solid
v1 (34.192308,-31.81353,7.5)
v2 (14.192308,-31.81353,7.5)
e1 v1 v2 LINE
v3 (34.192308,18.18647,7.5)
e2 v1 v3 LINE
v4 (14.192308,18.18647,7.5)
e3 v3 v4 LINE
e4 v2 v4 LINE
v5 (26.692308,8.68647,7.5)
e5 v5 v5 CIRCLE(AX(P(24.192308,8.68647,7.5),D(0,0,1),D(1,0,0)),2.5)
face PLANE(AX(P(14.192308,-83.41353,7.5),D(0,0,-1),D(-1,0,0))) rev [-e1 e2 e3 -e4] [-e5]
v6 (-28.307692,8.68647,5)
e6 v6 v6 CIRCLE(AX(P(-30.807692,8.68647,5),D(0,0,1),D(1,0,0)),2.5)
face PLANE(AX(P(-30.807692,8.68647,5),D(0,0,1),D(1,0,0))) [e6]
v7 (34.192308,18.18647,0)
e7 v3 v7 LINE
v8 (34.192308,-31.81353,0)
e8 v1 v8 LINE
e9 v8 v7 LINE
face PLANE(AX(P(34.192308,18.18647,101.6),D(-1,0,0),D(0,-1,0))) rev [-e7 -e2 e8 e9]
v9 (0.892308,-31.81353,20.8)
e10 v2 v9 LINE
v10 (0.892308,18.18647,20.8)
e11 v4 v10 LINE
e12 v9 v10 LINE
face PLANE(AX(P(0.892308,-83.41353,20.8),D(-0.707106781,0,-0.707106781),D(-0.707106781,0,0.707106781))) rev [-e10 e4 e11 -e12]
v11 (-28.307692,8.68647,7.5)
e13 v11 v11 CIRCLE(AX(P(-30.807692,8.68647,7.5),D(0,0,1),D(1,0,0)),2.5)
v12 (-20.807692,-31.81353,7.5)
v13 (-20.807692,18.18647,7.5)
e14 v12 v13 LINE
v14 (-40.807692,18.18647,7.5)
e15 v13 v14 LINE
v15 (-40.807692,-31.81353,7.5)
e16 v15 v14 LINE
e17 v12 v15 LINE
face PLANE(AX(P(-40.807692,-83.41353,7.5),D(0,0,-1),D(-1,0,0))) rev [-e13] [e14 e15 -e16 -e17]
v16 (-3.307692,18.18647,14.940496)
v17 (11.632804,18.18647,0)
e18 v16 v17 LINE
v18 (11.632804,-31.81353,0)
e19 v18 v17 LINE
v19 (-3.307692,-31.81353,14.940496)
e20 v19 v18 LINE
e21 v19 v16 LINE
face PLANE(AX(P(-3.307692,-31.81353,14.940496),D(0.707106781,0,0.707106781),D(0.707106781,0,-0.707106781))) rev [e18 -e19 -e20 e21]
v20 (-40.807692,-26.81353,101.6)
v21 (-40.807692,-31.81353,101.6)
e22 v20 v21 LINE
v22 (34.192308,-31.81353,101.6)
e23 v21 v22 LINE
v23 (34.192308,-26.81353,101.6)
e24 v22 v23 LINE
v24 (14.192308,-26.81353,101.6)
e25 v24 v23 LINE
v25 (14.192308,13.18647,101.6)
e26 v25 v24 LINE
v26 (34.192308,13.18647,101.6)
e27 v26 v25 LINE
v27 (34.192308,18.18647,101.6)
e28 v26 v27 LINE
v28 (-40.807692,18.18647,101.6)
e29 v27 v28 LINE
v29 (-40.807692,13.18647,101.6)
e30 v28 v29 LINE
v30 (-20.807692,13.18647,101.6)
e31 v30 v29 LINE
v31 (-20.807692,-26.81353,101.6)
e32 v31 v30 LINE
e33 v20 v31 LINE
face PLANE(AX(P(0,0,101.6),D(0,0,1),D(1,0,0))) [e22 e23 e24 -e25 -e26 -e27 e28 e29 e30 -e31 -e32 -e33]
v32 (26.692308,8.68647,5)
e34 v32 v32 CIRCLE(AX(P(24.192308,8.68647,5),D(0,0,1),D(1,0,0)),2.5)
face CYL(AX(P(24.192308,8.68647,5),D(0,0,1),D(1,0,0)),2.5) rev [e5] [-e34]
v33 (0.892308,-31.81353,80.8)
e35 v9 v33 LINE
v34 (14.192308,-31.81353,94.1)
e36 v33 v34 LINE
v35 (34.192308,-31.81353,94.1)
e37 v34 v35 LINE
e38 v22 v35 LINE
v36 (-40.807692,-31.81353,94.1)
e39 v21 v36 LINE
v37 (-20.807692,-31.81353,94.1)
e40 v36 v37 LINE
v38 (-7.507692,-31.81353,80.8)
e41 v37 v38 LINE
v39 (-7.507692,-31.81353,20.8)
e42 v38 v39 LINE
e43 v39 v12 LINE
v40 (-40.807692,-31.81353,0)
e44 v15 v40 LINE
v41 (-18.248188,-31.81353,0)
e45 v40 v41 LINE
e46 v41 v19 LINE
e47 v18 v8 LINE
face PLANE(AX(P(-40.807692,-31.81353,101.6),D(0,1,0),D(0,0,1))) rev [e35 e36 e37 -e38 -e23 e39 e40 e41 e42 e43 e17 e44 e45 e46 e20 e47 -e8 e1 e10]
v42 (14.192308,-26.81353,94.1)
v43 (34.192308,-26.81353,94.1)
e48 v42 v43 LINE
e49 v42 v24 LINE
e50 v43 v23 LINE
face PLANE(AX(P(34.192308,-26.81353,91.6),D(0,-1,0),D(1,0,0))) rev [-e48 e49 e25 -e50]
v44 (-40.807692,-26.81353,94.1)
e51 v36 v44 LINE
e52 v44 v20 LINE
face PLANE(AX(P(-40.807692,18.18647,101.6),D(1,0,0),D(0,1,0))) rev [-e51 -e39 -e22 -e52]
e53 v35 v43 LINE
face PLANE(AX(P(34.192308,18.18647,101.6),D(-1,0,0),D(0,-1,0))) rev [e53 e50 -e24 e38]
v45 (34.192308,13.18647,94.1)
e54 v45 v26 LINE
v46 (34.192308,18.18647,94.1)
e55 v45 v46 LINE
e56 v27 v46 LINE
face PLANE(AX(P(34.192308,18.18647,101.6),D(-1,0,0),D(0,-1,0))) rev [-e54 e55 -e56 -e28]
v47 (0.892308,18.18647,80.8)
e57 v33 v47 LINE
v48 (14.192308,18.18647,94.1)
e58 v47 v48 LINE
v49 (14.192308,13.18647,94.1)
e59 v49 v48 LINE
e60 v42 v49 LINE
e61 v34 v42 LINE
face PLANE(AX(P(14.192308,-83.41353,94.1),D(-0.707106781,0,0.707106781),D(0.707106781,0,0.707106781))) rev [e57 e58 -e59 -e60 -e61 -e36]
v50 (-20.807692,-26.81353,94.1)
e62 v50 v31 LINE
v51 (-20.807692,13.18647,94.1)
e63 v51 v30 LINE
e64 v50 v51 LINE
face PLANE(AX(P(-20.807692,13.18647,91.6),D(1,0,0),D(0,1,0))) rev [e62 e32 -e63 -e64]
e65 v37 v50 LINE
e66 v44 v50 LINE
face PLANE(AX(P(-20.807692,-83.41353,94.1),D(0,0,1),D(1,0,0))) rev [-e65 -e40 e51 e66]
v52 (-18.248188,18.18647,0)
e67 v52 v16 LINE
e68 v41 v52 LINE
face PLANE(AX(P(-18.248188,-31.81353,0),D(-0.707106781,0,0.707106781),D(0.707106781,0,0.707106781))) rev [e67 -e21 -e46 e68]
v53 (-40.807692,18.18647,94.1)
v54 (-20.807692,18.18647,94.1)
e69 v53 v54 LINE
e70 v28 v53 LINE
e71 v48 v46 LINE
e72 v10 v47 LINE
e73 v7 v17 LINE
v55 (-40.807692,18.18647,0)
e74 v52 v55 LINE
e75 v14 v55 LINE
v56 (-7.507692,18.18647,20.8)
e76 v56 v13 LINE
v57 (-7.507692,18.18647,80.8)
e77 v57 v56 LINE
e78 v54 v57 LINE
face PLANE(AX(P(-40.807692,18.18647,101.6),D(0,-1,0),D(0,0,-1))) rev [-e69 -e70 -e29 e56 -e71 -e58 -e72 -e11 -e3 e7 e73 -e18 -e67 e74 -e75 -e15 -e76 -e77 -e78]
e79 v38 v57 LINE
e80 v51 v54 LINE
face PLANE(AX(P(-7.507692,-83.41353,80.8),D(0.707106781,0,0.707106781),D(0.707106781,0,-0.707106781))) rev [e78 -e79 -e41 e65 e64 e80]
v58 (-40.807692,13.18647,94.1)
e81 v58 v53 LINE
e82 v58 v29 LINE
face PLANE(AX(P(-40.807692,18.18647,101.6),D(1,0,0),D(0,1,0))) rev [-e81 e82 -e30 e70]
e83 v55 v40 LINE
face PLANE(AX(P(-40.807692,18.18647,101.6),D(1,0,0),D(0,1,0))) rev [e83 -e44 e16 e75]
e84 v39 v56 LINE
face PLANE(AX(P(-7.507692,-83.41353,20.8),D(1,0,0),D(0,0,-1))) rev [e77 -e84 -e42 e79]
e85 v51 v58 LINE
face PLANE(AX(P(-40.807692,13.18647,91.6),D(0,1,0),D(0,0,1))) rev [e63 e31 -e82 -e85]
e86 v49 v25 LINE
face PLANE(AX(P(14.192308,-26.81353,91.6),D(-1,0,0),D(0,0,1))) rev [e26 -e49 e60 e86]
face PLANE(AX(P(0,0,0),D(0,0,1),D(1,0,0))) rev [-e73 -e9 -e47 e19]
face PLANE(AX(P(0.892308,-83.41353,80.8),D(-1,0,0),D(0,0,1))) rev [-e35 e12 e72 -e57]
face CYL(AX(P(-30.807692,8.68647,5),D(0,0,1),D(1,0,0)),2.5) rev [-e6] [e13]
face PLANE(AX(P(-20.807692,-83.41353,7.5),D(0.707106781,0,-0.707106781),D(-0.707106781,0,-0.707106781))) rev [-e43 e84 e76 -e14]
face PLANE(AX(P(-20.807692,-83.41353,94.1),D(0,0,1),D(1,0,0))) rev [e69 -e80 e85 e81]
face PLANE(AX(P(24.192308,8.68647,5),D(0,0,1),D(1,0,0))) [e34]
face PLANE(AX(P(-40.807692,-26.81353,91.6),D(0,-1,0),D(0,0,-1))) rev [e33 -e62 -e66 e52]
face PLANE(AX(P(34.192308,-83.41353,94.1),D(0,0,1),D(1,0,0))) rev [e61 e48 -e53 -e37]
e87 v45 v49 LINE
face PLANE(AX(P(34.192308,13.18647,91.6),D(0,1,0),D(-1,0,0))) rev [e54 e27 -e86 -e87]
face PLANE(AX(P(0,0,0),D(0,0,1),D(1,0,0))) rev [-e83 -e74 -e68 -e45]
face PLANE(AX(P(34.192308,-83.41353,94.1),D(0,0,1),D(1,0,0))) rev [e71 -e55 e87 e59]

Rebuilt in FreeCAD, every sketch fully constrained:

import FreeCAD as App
import Part
import Sketcher

V = App.Vector


def add_polygon(sketch, points):
    """Adds a closed chain of lines whose ends are joined by coincident constraints."""
    first, n = sketch.GeometryCount, len(points)
    for a, b in zip(points, points[1:] + points[:1]):
        sketch.addGeometry(Part.LineSegment(App.Vector(*a, 0), App.Vector(*b, 0)), False)
    for i in range(n):
        sketch.addConstraint(Sketcher.Constraint("Coincident", first + i, 2, first + (i + 1) % n, 1))

doc = App.newDocument("Part")
params = doc.addObject("Spreadsheet::Sheet", "Params")
for row, (alias, value) in enumerate([
    ("sketch1_width", "75 mm"),
    ("sketch1_height", "50 mm"),
    ("pad1_length", "101.6 mm"),
    ("sketch2_width", "20 mm"),
    ("sketch2_height", "60 mm"),
    ("sketch2_height2", "86.6 mm"),
    ("pocket1_length", "101.6 mm"),
    ("sketch3_width", "20 mm"),
    ("sketch3_height", "60 mm"),
    ("sketch3_height2", "86.6 mm"),
    ("pocket2_length", "101.6 mm"),
    ("sketch4_width", "20 mm"),
    ("sketch4_height", "40 mm"),
    ("pocket3_length", "10 mm"),
    ("sketch5_width", "20 mm"),
    ("sketch5_height", "40 mm"),
    ("pocket4_length", "10 mm"),
    ("sketch6_diameter", "5 mm"),
    ("pocket5_length", "2.5 mm"),
    ("sketch7_diameter", "5 mm"),
    ("pocket6_length", "2.5 mm"),
], start=1):
    params.set(f"A{row}", alias)
    params.set(f"B{row}", "=" + value)
    params.setAlias(f"B{row}", alias)

body = doc.addObject("PartDesign::Body", "Body")

sketch1 = body.newObject("Sketcher::SketchObject", "Sketch")
sketch1.AttachmentSupport = (doc.getObject("XY_Plane"), [""])
sketch1.MapMode = "FlatFace"
add_polygon(sketch1, [(-40.807692, 18.18647), (-40.807692, -31.81353), (34.192308, -31.81353), (34.192308, 18.18647)])
sketch1.addConstraint(Sketcher.Constraint("Vertical", 0))
sketch1.addConstraint(Sketcher.Constraint("Horizontal", 1))
sketch1.addConstraint(Sketcher.Constraint("Vertical", 2))
sketch1.addConstraint(Sketcher.Constraint("Horizontal", 3))
sketch1.addConstraint(Sketcher.Constraint("DistanceX", 1, 1, 1, 2, 75.0))
sketch1.addConstraint(Sketcher.Constraint("DistanceY", 0, 2, 0, 1, 50.0))
sketch1.addConstraint(Sketcher.Constraint("DistanceY", 0, 2, -1, 1, 31.81353))
sketch1.addConstraint(Sketcher.Constraint("DistanceX", 0, 2, -1, 1, 40.807692))
sketch1.setExpression("Constraints[8]", "Params.sketch1_width")
sketch1.setExpression("Constraints[9]", "Params.sketch1_height")
pad1 = body.newObject("PartDesign::Pad", "Pad")
pad1.Profile = sketch1
pad1.setExpression("Length", "Params.pad1_length")

sketch2 = body.newObject("Sketcher::SketchObject", "Sketch001")
sketch2.AttachmentSupport = (doc.getObject("XZ_Plane"), [""])
sketch2.MapMode = "FlatFace"
sketch2.AttachmentOffset = App.Placement(V(0, 0, -18.18647), App.Rotation())
add_polygon(sketch2, [(-20.807692, 7.5), (-40.807692, 7.5), (-40.807692, 94.1), (-20.807692, 94.1), (-7.507692, 80.8), (-7.507692, 20.8)])
sketch2.addConstraint(Sketcher.Constraint("Horizontal", 0))
sketch2.addConstraint(Sketcher.Constraint("Vertical", 1))
sketch2.addConstraint(Sketcher.Constraint("Horizontal", 2))
sketch2.addConstraint(Sketcher.Constraint("Vertical", 4))
sketch2.addConstraint(Sketcher.Constraint("Perpendicular", 3, 5))
sketch2.addConstraint(Sketcher.Constraint("Vertical", 2, 2, 5, 2))
sketch2.addConstraint(Sketcher.Constraint("Equal", 3, 5))
sketch2.addConstraint(Sketcher.Constraint("DistanceX", 0, 2, 0, 1, 20.0))
sketch2.addConstraint(Sketcher.Constraint("DistanceY", 4, 2, 4, 1, 60.0))
sketch2.addConstraint(Sketcher.Constraint("DistanceY", 1, 1, 1, 2, 86.6))
sketch2.addConstraint(Sketcher.Constraint("DistanceY", -1, 1, 0, 2, 7.5))
sketch2.addConstraint(Sketcher.Constraint("DistanceX", 0, 2, -1, 1, 40.807692))
sketch2.setExpression("Constraints[13]", "Params.sketch2_width")
sketch2.setExpression("Constraints[14]", "Params.sketch2_height")
sketch2.setExpression("Constraints[15]", "Params.sketch2_height2")
pocket1 = body.newObject("PartDesign::Pocket", "Pocket")
pocket1.Profile = sketch2
pocket1.setExpression("Length", "Params.pocket1_length")
pocket1.Reversed = True

sketch3 = body.newObject("Sketcher::SketchObject", "Sketch002")
sketch3.AttachmentSupport = (doc.getObject("XZ_Plane"), [""])
sketch3.MapMode = "FlatFace"
sketch3.AttachmentOffset = App.Placement(V(0, 0, -18.18647), App.Rotation())
add_polygon(sketch3, [(14.192308, 94.1), (34.192308, 94.1), (34.192308, 7.5), (14.192308, 7.5), (0.892308, 20.8), (0.892308, 80.8)])
sketch3.addConstraint(Sketcher.Constraint("Horizontal", 0))
sketch3.addConstraint(Sketcher.Constraint("Vertical", 1))
sketch3.addConstraint(Sketcher.Constraint("Horizontal", 2))
sketch3.addConstraint(Sketcher.Constraint("Vertical", 4))
sketch3.addConstraint(Sketcher.Constraint("Perpendicular", 3, 5))
sketch3.addConstraint(Sketcher.Constraint("Vertical", 2, 2, 5, 2))
sketch3.addConstraint(Sketcher.Constraint("Equal", 3, 5))
sketch3.addConstraint(Sketcher.Constraint("DistanceX", 0, 1, 0, 2, 20.0))
sketch3.addConstraint(Sketcher.Constraint("DistanceY", 4, 1, 4, 2, 60.0))
sketch3.addConstraint(Sketcher.Constraint("DistanceY", 1, 2, 1, 1, 86.6))
sketch3.addConstraint(Sketcher.Constraint("DistanceY", -1, 1, 0, 2, 94.1))
sketch3.addConstraint(Sketcher.Constraint("DistanceX", -1, 1, 0, 2, 34.192308))
sketch3.setExpression("Constraints[13]", "Params.sketch3_width")
sketch3.setExpression("Constraints[14]", "Params.sketch3_height")
sketch3.setExpression("Constraints[15]", "Params.sketch3_height2")
pocket2 = body.newObject("PartDesign::Pocket", "Pocket001")
pocket2.Profile = sketch3
pocket2.setExpression("Length", "Params.pocket2_length")
pocket2.Reversed = True

sketch4 = body.newObject("Sketcher::SketchObject", "Sketch003")
sketch4.AttachmentSupport = (doc.getObject("XY_Plane"), [""])
sketch4.MapMode = "FlatFace"
sketch4.AttachmentOffset = App.Placement(V(0, 0, 101.6), App.Rotation())
add_polygon(sketch4, [(14.192308, 13.18647), (14.192308, -26.81353), (34.192308, -26.81353), (34.192308, 13.18647)])
sketch4.addConstraint(Sketcher.Constraint("Vertical", 0))
sketch4.addConstraint(Sketcher.Constraint("Horizontal", 1))
sketch4.addConstraint(Sketcher.Constraint("Vertical", 2))
sketch4.addConstraint(Sketcher.Constraint("Horizontal", 3))
sketch4.addConstraint(Sketcher.Constraint("DistanceX", 1, 1, 1, 2, 20.0))
sketch4.addConstraint(Sketcher.Constraint("DistanceY", 0, 2, 0, 1, 40.0))
sketch4.addConstraint(Sketcher.Constraint("DistanceY", 0, 2, -1, 1, 26.81353))
sketch4.addConstraint(Sketcher.Constraint("DistanceX", -1, 1, 0, 2, 14.192308))
sketch4.setExpression("Constraints[8]", "Params.sketch4_width")
sketch4.setExpression("Constraints[9]", "Params.sketch4_height")
pocket3 = body.newObject("PartDesign::Pocket", "Pocket002")
pocket3.Profile = sketch4
pocket3.setExpression("Length", "Params.pocket3_length")

sketch5 = body.newObject("Sketcher::SketchObject", "Sketch004")
sketch5.AttachmentSupport = (doc.getObject("XY_Plane"), [""])
sketch5.MapMode = "FlatFace"
sketch5.AttachmentOffset = App.Placement(V(0, 0, 101.6), App.Rotation())
add_polygon(sketch5, [(-40.807692, 13.18647), (-40.807692, -26.81353), (-20.807692, -26.81353), (-20.807692, 13.18647)])
sketch5.addConstraint(Sketcher.Constraint("Vertical", 0))
sketch5.addConstraint(Sketcher.Constraint("Horizontal", 1))
sketch5.addConstraint(Sketcher.Constraint("Vertical", 2))
sketch5.addConstraint(Sketcher.Constraint("Horizontal", 3))
sketch5.addConstraint(Sketcher.Constraint("DistanceX", 1, 1, 1, 2, 20.0))
sketch5.addConstraint(Sketcher.Constraint("DistanceY", 0, 2, 0, 1, 40.0))
sketch5.addConstraint(Sketcher.Constraint("DistanceY", 0, 2, -1, 1, 26.81353))
sketch5.addConstraint(Sketcher.Constraint("DistanceX", 0, 2, -1, 1, 40.807692))
sketch5.setExpression("Constraints[8]", "Params.sketch5_width")
sketch5.setExpression("Constraints[9]", "Params.sketch5_height")
pocket4 = body.newObject("PartDesign::Pocket", "Pocket003")
pocket4.Profile = sketch5
pocket4.setExpression("Length", "Params.pocket4_length")

sketch6 = body.newObject("Sketcher::SketchObject", "Sketch005")
sketch6.AttachmentSupport = (doc.getObject("XY_Plane"), [""])
sketch6.MapMode = "FlatFace"
sketch6.AttachmentOffset = App.Placement(V(0, 0, 7.5), App.Rotation())
sketch6.addGeometry(Part.Circle(V(24.192308, 8.68647, 0), V(0, 0, 1), 2.5), False)
sketch6.addConstraint(Sketcher.Constraint("Diameter", 0, 5.0))
sketch6.addConstraint(Sketcher.Constraint("DistanceY", -1, 1, 0, 3, 8.68647))
sketch6.addConstraint(Sketcher.Constraint("DistanceX", -1, 1, 0, 3, 24.192308))
sketch6.setExpression("Constraints[0]", "Params.sketch6_diameter")
pocket5 = body.newObject("PartDesign::Pocket", "Pocket004")
pocket5.Profile = sketch6
pocket5.setExpression("Length", "Params.pocket5_length")

sketch7 = body.newObject("Sketcher::SketchObject", "Sketch006")
sketch7.AttachmentSupport = (doc.getObject("XY_Plane"), [""])
sketch7.MapMode = "FlatFace"
sketch7.AttachmentOffset = App.Placement(V(0, 0, 7.5), App.Rotation())
sketch7.addGeometry(Part.Circle(V(-30.807692, 8.68647, 0), V(0, 0, 1), 2.5), False)
sketch7.addConstraint(Sketcher.Constraint("Diameter", 0, 5.0))
sketch7.addConstraint(Sketcher.Constraint("DistanceY", -1, 1, 0, 3, 8.68647))
sketch7.addConstraint(Sketcher.Constraint("DistanceX", 0, 3, -1, 1, 30.807692))
sketch7.setExpression("Constraints[0]", "Params.sketch7_diameter")
pocket6 = body.newObject("PartDesign::Pocket", "Pocket005")
pocket6.Profile = sketch7
pocket6.setExpression("Length", "Params.pocket6_length")

sketch8 = body.newObject("Sketcher::SketchObject", "Sketch007")
sketch8.AttachmentSupport = (doc.getObject("XZ_Plane"), [""])
sketch8.MapMode = "FlatFace"
sketch8.AttachmentOffset = App.Placement(V(0, 0, -18.18647), App.Rotation())
add_polygon(sketch8, [(-18.248188, 0), (-3.307692, 14.940496), (11.632804, 0)])
sketch8.addConstraint(Sketcher.Constraint("Horizontal", 2))
sketch8.addConstraint(Sketcher.Constraint("PointOnObject", 1, 2, -1))
sketch8.addConstraint(Sketcher.Constraint("Perpendicular", 0, 1))
sketch8.addConstraint(Sketcher.Constraint("Equal", 0, 1))
sketch8.addConstraint(Sketcher.Constraint("DistanceX", 2, 2, 2, 1, 29.880992))
sketch8.addConstraint(Sketcher.Constraint("DistanceX", 2, 2, -1, 1, 18.248188))
pocket7 = body.newObject("PartDesign::Pocket", "Pocket006")
pocket7.Profile = sketch8
pocket7.Type = "ThroughAll"
pocket7.Reversed = True

doc.recompute()
